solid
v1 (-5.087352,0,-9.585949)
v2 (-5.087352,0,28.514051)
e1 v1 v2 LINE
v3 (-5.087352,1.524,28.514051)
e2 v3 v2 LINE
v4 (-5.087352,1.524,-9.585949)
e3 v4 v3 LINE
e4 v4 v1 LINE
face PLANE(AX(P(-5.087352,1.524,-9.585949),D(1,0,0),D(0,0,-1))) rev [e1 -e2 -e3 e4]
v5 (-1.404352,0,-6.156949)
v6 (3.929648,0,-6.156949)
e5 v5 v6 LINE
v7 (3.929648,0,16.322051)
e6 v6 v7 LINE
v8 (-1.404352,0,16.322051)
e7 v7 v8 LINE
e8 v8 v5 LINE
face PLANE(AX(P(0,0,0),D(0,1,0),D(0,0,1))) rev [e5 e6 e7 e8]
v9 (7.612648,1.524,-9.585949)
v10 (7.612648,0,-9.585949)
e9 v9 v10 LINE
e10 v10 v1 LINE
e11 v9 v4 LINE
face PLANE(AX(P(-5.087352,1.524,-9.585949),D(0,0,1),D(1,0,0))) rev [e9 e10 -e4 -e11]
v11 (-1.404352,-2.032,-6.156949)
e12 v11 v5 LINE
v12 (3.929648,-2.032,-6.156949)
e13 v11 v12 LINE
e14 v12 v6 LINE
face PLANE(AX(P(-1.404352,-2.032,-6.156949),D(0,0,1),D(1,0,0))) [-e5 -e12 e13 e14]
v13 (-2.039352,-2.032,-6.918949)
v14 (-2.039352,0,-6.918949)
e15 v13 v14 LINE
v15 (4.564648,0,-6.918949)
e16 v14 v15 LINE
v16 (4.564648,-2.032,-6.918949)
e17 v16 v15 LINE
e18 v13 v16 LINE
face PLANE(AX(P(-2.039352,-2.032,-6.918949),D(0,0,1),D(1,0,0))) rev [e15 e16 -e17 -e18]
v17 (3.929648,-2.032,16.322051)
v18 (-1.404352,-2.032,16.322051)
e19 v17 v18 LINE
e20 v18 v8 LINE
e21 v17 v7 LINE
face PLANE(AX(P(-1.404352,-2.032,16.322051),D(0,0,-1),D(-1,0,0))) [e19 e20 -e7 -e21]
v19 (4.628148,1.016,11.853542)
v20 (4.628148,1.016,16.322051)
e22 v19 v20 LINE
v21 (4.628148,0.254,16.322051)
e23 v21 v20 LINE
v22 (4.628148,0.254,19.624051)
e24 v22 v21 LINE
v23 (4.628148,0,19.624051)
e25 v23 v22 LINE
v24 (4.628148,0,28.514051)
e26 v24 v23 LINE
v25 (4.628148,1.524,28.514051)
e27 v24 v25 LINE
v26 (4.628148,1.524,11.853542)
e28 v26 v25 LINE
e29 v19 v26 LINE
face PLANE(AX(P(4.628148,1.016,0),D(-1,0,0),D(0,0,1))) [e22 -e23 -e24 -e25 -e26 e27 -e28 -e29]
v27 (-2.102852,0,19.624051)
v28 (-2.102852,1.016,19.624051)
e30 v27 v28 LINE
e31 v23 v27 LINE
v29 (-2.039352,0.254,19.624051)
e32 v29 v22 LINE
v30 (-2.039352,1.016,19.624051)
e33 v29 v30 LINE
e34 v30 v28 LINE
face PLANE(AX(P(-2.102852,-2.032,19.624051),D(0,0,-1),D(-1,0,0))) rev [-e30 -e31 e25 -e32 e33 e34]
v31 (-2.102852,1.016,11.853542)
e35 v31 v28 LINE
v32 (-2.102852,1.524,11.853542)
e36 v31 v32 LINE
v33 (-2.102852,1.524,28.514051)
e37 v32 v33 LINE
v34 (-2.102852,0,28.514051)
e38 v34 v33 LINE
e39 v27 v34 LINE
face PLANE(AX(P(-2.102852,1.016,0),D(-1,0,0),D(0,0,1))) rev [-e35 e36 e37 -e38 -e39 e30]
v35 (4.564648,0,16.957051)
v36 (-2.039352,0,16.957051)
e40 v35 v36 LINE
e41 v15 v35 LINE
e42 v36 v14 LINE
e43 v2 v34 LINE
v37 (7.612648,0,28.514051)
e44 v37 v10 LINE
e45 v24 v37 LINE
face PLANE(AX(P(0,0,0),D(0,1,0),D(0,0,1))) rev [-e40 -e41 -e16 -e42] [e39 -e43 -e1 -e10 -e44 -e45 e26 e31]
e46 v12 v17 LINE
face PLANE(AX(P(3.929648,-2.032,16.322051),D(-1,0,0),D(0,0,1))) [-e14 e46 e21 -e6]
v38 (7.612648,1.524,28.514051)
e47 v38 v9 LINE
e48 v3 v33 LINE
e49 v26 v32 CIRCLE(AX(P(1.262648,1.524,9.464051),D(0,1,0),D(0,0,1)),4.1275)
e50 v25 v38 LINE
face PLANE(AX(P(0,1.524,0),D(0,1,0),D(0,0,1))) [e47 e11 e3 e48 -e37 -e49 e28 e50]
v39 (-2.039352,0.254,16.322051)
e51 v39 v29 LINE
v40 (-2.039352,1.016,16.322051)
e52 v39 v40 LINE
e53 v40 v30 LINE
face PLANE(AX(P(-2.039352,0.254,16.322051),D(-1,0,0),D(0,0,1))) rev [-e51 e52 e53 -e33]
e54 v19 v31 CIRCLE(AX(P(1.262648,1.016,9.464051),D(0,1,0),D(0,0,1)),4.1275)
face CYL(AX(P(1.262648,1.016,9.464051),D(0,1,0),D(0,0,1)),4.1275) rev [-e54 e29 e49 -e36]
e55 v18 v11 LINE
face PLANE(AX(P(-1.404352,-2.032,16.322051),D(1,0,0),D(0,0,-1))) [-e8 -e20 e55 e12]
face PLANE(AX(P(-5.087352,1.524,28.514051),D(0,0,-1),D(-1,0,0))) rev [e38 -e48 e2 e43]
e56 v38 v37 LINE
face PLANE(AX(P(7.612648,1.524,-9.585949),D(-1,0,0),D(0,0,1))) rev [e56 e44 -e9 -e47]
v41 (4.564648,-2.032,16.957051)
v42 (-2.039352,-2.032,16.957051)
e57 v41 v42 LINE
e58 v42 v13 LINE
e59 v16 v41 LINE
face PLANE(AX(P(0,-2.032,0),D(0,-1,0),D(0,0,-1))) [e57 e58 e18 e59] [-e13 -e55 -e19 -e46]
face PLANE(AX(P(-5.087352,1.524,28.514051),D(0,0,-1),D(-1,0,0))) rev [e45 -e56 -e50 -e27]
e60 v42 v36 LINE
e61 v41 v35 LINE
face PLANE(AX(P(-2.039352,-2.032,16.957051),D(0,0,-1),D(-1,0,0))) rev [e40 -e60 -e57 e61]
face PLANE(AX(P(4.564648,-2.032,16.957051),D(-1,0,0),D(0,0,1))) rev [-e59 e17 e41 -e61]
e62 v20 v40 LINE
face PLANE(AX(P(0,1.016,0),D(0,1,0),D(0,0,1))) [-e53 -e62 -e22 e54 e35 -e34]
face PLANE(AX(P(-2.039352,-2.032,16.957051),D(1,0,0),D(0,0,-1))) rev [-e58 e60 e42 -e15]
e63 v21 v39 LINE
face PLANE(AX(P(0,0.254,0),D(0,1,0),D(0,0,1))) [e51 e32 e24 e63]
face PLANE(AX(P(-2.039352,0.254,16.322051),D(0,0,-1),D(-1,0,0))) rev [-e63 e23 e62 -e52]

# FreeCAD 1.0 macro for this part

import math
import FreeCAD as App
import Part
import Sketcher
from FreeCAD import Vector
Q = App.Units.Quantity


def add_polygon(sketch, points):
    """Adds a closed chain of lines whose ends are joined by coincident constraints."""
    first, n = sketch.GeometryCount, len(points)
    for a, b in zip(points, points[1:] + points[:1]):
        sketch.addGeometry(Part.LineSegment(App.Vector(*a, 0), App.Vector(*b, 0)), False)
    for i in range(n):
        sketch.addConstraint(Sketcher.Constraint("Coincident", first + i, 2, first + (i + 1) % n, 1))

doc = App.newDocument("Part")
body = doc.addObject("PartDesign::Body", "Body")

# Sketch on XZ plane
sketch1 = body.newObject("Sketcher::SketchObject", "Sketch")
sketch1.AttachmentSupport = (doc.getObject("XZ_Plane"), [""])
sketch1.MapMode = "FlatFace"
add_polygon(sketch1, [(-5, -10), (-5, 29), (8, 29), (8, -10)])  # lines 0-3
sketch1.addConstraint([
    Sketcher.Constraint("Vertical", 0),
    Sketcher.Constraint("Horizontal", 1),
    Sketcher.Constraint("Vertical", 2),
    Sketcher.Constraint("Horizontal", 3),
    Sketcher.Constraint("DistanceX", 1, 1, 1, 2, Q("0.5 in")),
    Sketcher.Constraint("DistanceY", 0, 1, 0, 2, Q("1.5 in")),
    Sketcher.Constraint("DistanceX", 0, 2, -1, 1, 5.087352),
    Sketcher.Constraint("DistanceY", -1, 1, 0, 2, 28.514051),
])
pad1 = body.newObject("PartDesign::Pad", "Pad")
pad1.Profile = sketch1
pad1.Length = Q("0.06 in")
pad1.Reversed = True

# Sketch on XZ plane
sketch2 = body.newObject("Sketcher::SketchObject", "Sketch001")
sketch2.AttachmentSupport = (doc.getObject("XZ_Plane"), [""])
sketch2.MapMode = "FlatFace"
add_polygon(sketch2, [(-2, 17), (-2, -7), (5, -7), (5, 17)])  # lines 0-3
add_polygon(sketch2, [(4, -6), (-1, -6), (-1, 16), (4, 16)])  # lines 4-7
sketch2.addConstraint([
    Sketcher.Constraint("Vertical", 0),
    Sketcher.Constraint("Horizontal", 1),
    Sketcher.Constraint("Vertical", 2),
    Sketcher.Constraint("Horizontal", 3),
    Sketcher.Constraint("Horizontal", 4),
    Sketcher.Constraint("Vertical", 5),
    Sketcher.Constraint("Horizontal", 6),
    Sketcher.Constraint("Vertical", 7),
    Sketcher.Constraint("DistanceX", 1, 1, 1, 2, Q("0.26 in")),
    Sketcher.Constraint("DistanceX", 4, 2, 4, 1, Q("0.21 in")),
    Sketcher.Constraint("DistanceY", 0, 2, 0, 1, Q("0.94 in")),
    Sketcher.Constraint("DistanceY", 5, 1, 5, 2, Q("0.885 in")),
    Sketcher.Constraint("DistanceY", 0, 2, 4, 2, Q("0.03 in")),
    Sketcher.Constraint("DistanceX", 0, 2, 4, 2, Q("0.025 in")),
    Sketcher.Constraint("DistanceX", 0, 2, -1, 1, 2.039352),
    Sketcher.Constraint("DistanceY", 0, 2, -1, 1, 6.918949),
])
pad2 = body.newObject("PartDesign::Pad", "Pad001")
pad2.Profile = sketch2
pad2.Length = Q("0.08 in")

# Sketch on XZ plane
sketch3 = body.newObject("Sketcher::SketchObject", "Sketch002")
sketch3.AttachmentSupport = (doc.getObject("XZ_Plane"), [""])
sketch3.MapMode = "FlatFace"
sketch3.AttachmentOffset = App.Placement(Vector(0, 0, -0.06 * 25.4), App.Rotation())
sketch3.addGeometry([
    Part.ArcOfCircle(Part.Circle(Vector(1.3, 9.5, 0), Vector(0, 0, 1), 4.1), math.radians(145), math.radians(360)),  # 0
    Part.LineSegment(Vector(-2.1, 11.9, 0), Vector(-2.1, 28.5, 0)),  # 1
    Part.LineSegment(Vector(-2.1, 28.5, 0), Vector(4.6, 28.5, 0)),  # 2
    Part.LineSegment(Vector(4.6, 28.5, 0), Vector(4.6, 11.9, 0)),  # 3
    Part.ArcOfCircle(Part.Circle(Vector(1.3, 9.5, 0), Vector(0, 0, 1), 4.1), math.radians(0), math.radians(35)),  # 4
], False)
sketch3.addConstraint([
    Sketcher.Constraint("Coincident", 0, 1, 1, 1),
    Sketcher.Constraint("Coincident", 1, 2, 2, 1),
    Sketcher.Constraint("Coincident", 2, 2, 3, 1),
    Sketcher.Constraint("Coincident", 3, 2, 4, 2),
    Sketcher.Constraint("Tangent", 4, 1, 0, 2),
    Sketcher.Constraint("Vertical", 1),
    Sketcher.Constraint("Horizontal", 2),
    Sketcher.Constraint("Vertical", 3),
    Sketcher.Constraint("Equal", 0, 4),
    Sketcher.Constraint("Horizontal", 0, 1, 3, 2),
    Sketcher.Constraint("Horizontal", 0, 3, 4, 1),
    Sketcher.Constraint("Radius", 0, Q("0.1625 in")),
    Sketcher.Constraint("DistanceX", 2, 1, 2, 2, Q("0.265 in")),
    Sketcher.Constraint("DistanceY", 4, 3, 1, 2, Q("0.75 in")),
    Sketcher.Constraint("DistanceX", -1, 1, 0, 3, 1.262648),
    Sketcher.Constraint("DistanceY", -1, 1, 0, 3, 9.464051),
])
pocket1 = body.newObject("PartDesign::Pocket", "Pocket")
pocket1.Profile = sketch3
pocket1.Length = Q("0.02 in")
pocket1.Reversed = True

# Sketch on XZ plane
sketch4 = body.newObject("Sketcher::SketchObject", "Sketch003")
sketch4.AttachmentSupport = (doc.getObject("XZ_Plane"), [""])
sketch4.MapMode = "FlatFace"
sketch4.AttachmentOffset = App.Placement(Vector(0, 0, -0.04 * 25.4), App.Rotation())
add_polygon(sketch4, [(-2, 20), (-2, 29), (5, 29), (5, 20)])  # lines 0-3
sketch4.addConstraint([
    Sketcher.Constraint("Vertical", 0),
    Sketcher.Constraint("Horizontal", 1),
    Sketcher.Constraint("Vertical", 2),
    Sketcher.Constraint("Horizontal", 3),
    Sketcher.Constraint("DistanceY", 0, 1, 0, 2, Q("0.35 in")),
    Sketcher.Constraint("DistanceX", 1, 1, 1, 2, Q("0.265 in")),
    Sketcher.Constraint("DistanceX", 0, 2, -1, 1, 2.102852),
    Sketcher.Constraint("DistanceY", -1, 1, 0, 2, 28.514051),
])
pocket2 = body.newObject("PartDesign::Pocket", "Pocket001")
pocket2.Profile = sketch4
pocket2.Type = "ThroughAll"
pocket2.Reversed = True

# Sketch on XZ plane
sketch5 = body.newObject("Sketcher::SketchObject", "Sketch004")
sketch5.AttachmentSupport = (doc.getObject("XZ_Plane"), [""])
sketch5.MapMode = "FlatFace"
sketch5.AttachmentOffset = App.Placement(Vector(0, 0, -0.04 * 25.4), App.Rotation())
add_polygon(sketch5, [(-2, 16.3), (-2, 19.6), (4.6, 19.6), (4.6, 16.3)])  # lines 0-3
sketch5.addConstraint([
    Sketcher.Constraint("Vertical", 0),
    Sketcher.Constraint("Horizontal", 1),
    Sketcher.Constraint("Vertical", 2),
    Sketcher.Constraint("Horizontal", 3),
    Sketcher.Constraint("DistanceY", 0, 1, 0, 2, Q("0.13 in")),
    Sketcher.Constraint("DistanceX", 1, 1, 1, 2, Q("0.2625 in")),
    Sketcher.Constraint("DistanceX", 0, 2, -1, 1, 2.039352),
    Sketcher.Constraint("DistanceY", -1, 1, 0, 2, 19.624051),
])
pocket3 = body.newObject("PartDesign::Pocket", "Pocket002")
pocket3.Profile = sketch5
pocket3.Length = Q("0.03 in")
pocket3.Reversed = True

doc.recompute()
